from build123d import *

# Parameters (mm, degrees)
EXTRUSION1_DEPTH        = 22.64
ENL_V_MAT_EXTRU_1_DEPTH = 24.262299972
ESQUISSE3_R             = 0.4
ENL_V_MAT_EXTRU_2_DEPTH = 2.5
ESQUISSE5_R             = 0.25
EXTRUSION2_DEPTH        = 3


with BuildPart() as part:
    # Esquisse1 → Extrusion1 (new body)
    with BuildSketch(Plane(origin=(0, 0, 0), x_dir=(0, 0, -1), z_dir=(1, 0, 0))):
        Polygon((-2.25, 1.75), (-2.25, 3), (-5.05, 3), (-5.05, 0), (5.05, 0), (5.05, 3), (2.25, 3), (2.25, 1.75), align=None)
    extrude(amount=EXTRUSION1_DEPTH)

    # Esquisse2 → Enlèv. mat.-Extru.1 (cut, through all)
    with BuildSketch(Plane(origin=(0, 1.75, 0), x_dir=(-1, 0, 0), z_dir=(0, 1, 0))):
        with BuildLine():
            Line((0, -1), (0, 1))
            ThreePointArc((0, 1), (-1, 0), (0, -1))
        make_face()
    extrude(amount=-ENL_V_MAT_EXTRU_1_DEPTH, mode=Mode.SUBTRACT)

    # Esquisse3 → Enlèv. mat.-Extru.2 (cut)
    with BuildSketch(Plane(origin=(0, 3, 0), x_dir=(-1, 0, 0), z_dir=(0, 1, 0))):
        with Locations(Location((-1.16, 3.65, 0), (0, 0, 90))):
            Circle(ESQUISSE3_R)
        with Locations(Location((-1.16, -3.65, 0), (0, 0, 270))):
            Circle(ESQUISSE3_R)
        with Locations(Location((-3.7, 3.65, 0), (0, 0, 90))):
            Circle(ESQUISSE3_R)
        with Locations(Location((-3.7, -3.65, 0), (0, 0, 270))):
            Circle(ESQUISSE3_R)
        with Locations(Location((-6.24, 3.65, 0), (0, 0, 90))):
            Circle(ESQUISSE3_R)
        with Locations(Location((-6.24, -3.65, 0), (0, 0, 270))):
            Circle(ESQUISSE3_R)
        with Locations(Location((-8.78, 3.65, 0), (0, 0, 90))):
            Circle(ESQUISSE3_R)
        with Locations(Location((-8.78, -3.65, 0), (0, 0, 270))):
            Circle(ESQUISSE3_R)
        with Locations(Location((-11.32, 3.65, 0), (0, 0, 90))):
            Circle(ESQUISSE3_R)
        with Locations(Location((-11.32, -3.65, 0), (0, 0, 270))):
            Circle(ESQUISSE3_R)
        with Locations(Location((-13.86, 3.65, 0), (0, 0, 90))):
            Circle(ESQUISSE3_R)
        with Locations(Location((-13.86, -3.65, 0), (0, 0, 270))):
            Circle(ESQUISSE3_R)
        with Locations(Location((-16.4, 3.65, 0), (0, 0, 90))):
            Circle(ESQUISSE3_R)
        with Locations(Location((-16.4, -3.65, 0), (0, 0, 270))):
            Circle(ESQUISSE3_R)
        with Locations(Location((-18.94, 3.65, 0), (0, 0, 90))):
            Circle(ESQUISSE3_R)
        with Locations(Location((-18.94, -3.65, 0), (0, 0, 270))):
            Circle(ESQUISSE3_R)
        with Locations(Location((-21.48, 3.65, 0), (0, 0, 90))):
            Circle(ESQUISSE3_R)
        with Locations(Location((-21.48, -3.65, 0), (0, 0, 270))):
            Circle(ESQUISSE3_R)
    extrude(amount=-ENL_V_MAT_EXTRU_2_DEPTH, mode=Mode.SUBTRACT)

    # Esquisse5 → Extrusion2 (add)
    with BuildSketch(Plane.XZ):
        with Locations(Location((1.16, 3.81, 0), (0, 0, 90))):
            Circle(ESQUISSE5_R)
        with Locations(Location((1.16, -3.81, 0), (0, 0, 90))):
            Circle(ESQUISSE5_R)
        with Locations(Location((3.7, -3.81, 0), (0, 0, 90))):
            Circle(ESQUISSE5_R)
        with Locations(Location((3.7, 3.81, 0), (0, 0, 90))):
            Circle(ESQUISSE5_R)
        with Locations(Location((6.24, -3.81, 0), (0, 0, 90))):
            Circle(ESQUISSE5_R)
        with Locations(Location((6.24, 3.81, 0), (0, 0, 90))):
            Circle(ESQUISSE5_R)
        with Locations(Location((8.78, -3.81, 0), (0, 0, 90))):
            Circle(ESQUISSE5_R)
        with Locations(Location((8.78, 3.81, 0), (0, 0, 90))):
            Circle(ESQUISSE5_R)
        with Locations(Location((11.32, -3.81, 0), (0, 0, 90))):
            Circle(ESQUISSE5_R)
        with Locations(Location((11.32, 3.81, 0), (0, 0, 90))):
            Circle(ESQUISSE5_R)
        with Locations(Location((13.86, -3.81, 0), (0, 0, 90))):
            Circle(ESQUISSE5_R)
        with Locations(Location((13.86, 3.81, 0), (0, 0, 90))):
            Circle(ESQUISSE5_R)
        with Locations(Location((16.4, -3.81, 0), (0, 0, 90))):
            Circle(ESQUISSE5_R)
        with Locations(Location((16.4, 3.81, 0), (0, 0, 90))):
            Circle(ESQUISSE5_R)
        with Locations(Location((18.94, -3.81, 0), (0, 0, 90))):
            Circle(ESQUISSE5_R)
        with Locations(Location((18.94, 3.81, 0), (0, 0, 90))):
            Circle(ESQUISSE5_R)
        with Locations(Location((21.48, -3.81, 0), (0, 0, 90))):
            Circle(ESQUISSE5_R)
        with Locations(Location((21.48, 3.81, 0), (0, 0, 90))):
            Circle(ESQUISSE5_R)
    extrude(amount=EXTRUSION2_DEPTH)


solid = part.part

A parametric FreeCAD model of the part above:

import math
import FreeCAD as App
import Part
import Sketcher
from FreeCAD import Vector


def add_polygon(sketch, points):
    """Adds a closed chain of lines whose ends are joined by coincident constraints."""
    first, n = sketch.GeometryCount, len(points)
    for a, b in zip(points, points[1:] + points[:1]):
        sketch.addGeometry(Part.LineSegment(App.Vector(*a, 0), App.Vector(*b, 0)), False)
    for i in range(n):
        sketch.addConstraint(Sketcher.Constraint("Coincident", first + i, 2, first + (i + 1) % n, 1))

doc = App.newDocument("Part")
params = doc.addObject("Spreadsheet::Sheet", "Params")
for row, (alias, value) in enumerate([
    ("sketch1_width", "3 mm"),
    ("sketch1_height", "2.8 mm"),
    ("sketch1_height2", "10.1 mm"),
    ("sketch1_width2", "1.25 mm"),
    ("pad1_length", "22.64 mm"),
    ("sketch2_radius", "1 mm"),
    ("sketch3_diameter", "0.8 mm"),
    ("pocket2_length", "2.5 mm"),
    ("sketch4_diameter", "0.5 mm"),
    ("pad2_length", "3 mm"),
], start=1):
    params.set(f"A{row}", alias)
    params.set(f"B{row}", "=" + value)
    params.setAlias(f"B{row}", alias)

body = doc.addObject("PartDesign::Body", "Body")

# Sketch on YZ plane
sketch1 = body.newObject("Sketcher::SketchObject", "Sketch")
sketch1.AttachmentSupport = (doc.getObject("YZ_Plane"), [""])
sketch1.MapMode = "FlatFace"
add_polygon(sketch1, [(1.8, 2.2), (3, 2.2), (3, 5), (0, 5), (0, -5), (3, -5), (3, -2.2), (1.8, -2.2)])  # lines 0-7
sketch1.addConstraint([
    Sketcher.Constraint("Horizontal", 0),
    Sketcher.Constraint("Vertical", 1),
    Sketcher.Constraint("Horizontal", 2),
    Sketcher.Constraint("Vertical", 3),
    Sketcher.Constraint("Horizontal", 4),
    Sketcher.Constraint("Vertical", 5),
    Sketcher.Constraint("Horizontal", 6),
    Sketcher.Constraint("Vertical", 7),
    Sketcher.Constraint("Symmetric", 2, 2, 3, 2, -1, 1),
    Sketcher.Constraint("Symmetric", 0, 2, 5, 2, -1),
    Sketcher.Constraint("DistanceX", 2, 2, 2, 1, 3.0),
    Sketcher.Constraint("DistanceY", 1, 1, 1, 2, 2.8),
    Sketcher.Constraint("DistanceY", 3, 2, 3, 1, 10.1),
    Sketcher.Constraint("DistanceX", 0, 1, 0, 2, 1.25),
])
sketch1.setExpression("Constraints[18]", "Params.sketch1_width")
sketch1.setExpression("Constraints[19]", "Params.sketch1_height")
sketch1.setExpression("Constraints[20]", "Params.sketch1_height2")
sketch1.setExpression("Constraints[21]", "Params.sketch1_width2")
pad1 = body.newObject("PartDesign::Pad", "Pad")
pad1.Profile = sketch1
pad1.setExpression("Length", "Params.pad1_length")

# Sketch on XZ plane
sketch2 = body.newObject("Sketcher::SketchObject", "Sketch001")
sketch2.AttachmentSupport = (doc.getObject("XZ_Plane"), [""])
sketch2.MapMode = "FlatFace"
sketch2.AttachmentOffset = App.Placement(Vector(0, 0, -1.75), App.Rotation())
sketch2.addGeometry([
    Part.LineSegment(Vector(0, -1, 0), Vector(0, 1, 0)),
    Part.ArcOfCircle(Part.Circle(Vector(0, 0, 0), Vector(0, 0, 1), 1), math.radians(-90), math.radians(90)),
], False)
sketch2.addConstraint([
    Sketcher.Constraint("Coincident", 0, 1, 1, 1),
    Sketcher.Constraint("Coincident", 1, 2, 0, 2),
    Sketcher.Constraint("Vertical", 0),
    Sketcher.Constraint("Coincident", 1, 3, -1, 1),
    Sketcher.Constraint("PointOnObject", 0, 1, -2),
    Sketcher.Constraint("Radius", 1, 1.0),
])
sketch2.setExpression("Constraints[5]", "Params.sketch2_radius")
pocket1 = body.newObject("PartDesign::Pocket", "Pocket")
pocket1.Profile = sketch2
pocket1.Type = "ThroughAll"
pocket1.Reversed = True

# Sketch on XZ plane
sketch3 = body.newObject("Sketcher::SketchObject", "Sketch002")
sketch3.AttachmentSupport = (doc.getObject("XZ_Plane"), [""])
sketch3.MapMode = "FlatFace"
sketch3.AttachmentOffset = App.Placement(Vector(0, 0, -3), App.Rotation())
sketch3.addGeometry([
    Part.Circle(Vector(1.16, 3.65, 0), Vector(0, 0, 1), 0.4),  # 0
    Part.Circle(Vector(1.16, -3.65, 0), Vector(0, 0, 1), 0.4),  # 1
    Part.Circle(Vector(3.7, 3.65, 0), Vector(0, 0, 1), 0.4),  # 2
    Part.Circle(Vector(3.7, -3.65, 0), Vector(0, 0, 1), 0.4),  # 3
    Part.Circle(Vector(6.24, 3.65, 0), Vector(0, 0, 1), 0.4),  # 4
    Part.Circle(Vector(6.24, -3.65, 0), Vector(0, 0, 1), 0.4),  # 5
    Part.Circle(Vector(8.78, 3.65, 0), Vector(0, 0, 1), 0.4),  # 6
    Part.Circle(Vector(8.78, -3.65, 0), Vector(0, 0, 1), 0.4),  # 7
    Part.Circle(Vector(11.32, 3.65, 0), Vector(0, 0, 1), 0.4),  # 8
    Part.Circle(Vector(11.32, -3.65, 0), Vector(0, 0, 1), 0.4),  # 9
    Part.Circle(Vector(13.86, 3.65, 0), Vector(0, 0, 1), 0.4),  # 10
    Part.Circle(Vector(13.86, -3.65, 0), Vector(0, 0, 1), 0.4),  # 11
    Part.Circle(Vector(16.4, 3.65, 0), Vector(0, 0, 1), 0.4),  # 12
    Part.Circle(Vector(16.4, -3.65, 0), Vector(0, 0, 1), 0.4),  # 13
    Part.Circle(Vector(18.94, 3.65, 0), Vector(0, 0, 1), 0.4),  # 14
    Part.Circle(Vector(18.94, -3.65, 0), Vector(0, 0, 1), 0.4),  # 15
    Part.Circle(Vector(21.48, 3.65, 0), Vector(0, 0, 1), 0.4),  # 16
    Part.Circle(Vector(21.48, -3.65, 0), Vector(0, 0, 1), 0.4),  # 17
], False)
sketch3.addConstraint([
    Sketcher.Constraint("Equal", 0, 1),
    Sketcher.Constraint("Equal", 1, 2),
    Sketcher.Constraint("Equal", 2, 3),
    Sketcher.Constraint("Equal", 3, 4),
    Sketcher.Constraint("Equal", 4, 5),
    Sketcher.Constraint("Equal", 5, 6),
    Sketcher.Constraint("Equal", 6, 7),
    Sketcher.Constraint("Equal", 7, 8),
    Sketcher.Constraint("Equal", 8, 9),
    Sketcher.Constraint("Equal", 9, 10),
    Sketcher.Constraint("Equal", 10, 11),
    Sketcher.Constraint("Equal", 11, 12),
    Sketcher.Constraint("Equal", 12, 13),
    Sketcher.Constraint("Equal", 13, 14),
    Sketcher.Constraint("Equal", 14, 15),
    Sketcher.Constraint("Equal", 15, 16),
    Sketcher.Constraint("Equal", 16, 17),
    Sketcher.Constraint("Symmetric", 0, 3, 1, 3, -1),
    Sketcher.Constraint("Symmetric", 2, 3, 3, 3, -1),
    Sketcher.Constraint("Symmetric", 4, 3, 5, 3, -1),
    Sketcher.Constraint("Symmetric", 6, 3, 7, 3, -1),
    Sketcher.Constraint("Symmetric", 8, 3, 9, 3, -1),
    Sketcher.Constraint("Symmetric", 10, 3, 11, 3, -1),
    Sketcher.Constraint("Symmetric", 12, 3, 13, 3, -1),
    Sketcher.Constraint("Symmetric", 14, 3, 15, 3, -1),
    Sketcher.Constraint("Symmetric", 16, 3, 17, 3, -1),
    Sketcher.Constraint("Horizontal", 0, 3, 2, 3),
    Sketcher.Constraint("Horizontal", 2, 3, 4, 3),
    Sketcher.Constraint("Horizontal", 4, 3, 6, 3),
    Sketcher.Constraint("Horizontal", 6, 3, 8, 3),
    Sketcher.Constraint("Horizontal", 8, 3, 10, 3),
    Sketcher.Constraint("Horizontal", 10, 3, 12, 3),
    Sketcher.Constraint("Horizontal", 12, 3, 14, 3),
    Sketcher.Constraint("Horizontal", 14, 3, 16, 3),
    Sketcher.Constraint("Diameter", 0, 0.8),
    Sketcher.Constraint("DistanceX", -1, 1, 2, 3, 3.7),
    Sketcher.Constraint("DistanceX", -1, 1, 12, 3, 16.4),
    Sketcher.Constraint("DistanceY", 1, 3, 0, 3, 7.3),
    Sketcher.Constraint("DistanceX", -1, 1, 0, 3, 1.16),
    Sketcher.Constraint("DistanceX", -1, 1, 4, 3, 6.24),
    Sketcher.Constraint("DistanceX", -1, 1, 6, 3, 8.78),
    Sketcher.Constraint("DistanceX", -1, 1, 8, 3, 11.32),
    Sketcher.Constraint("DistanceX", -1, 1, 10, 3, 13.86),
    Sketcher.Constraint("DistanceX", -1, 1, 14, 3, 18.94),
    Sketcher.Constraint("DistanceX", -1, 1, 16, 3, 21.48),
])
sketch3.setExpression("Constraints[34]", "Params.sketch3_diameter")
pocket2 = body.newObject("PartDesign::Pocket", "Pocket001")
pocket2.Profile = sketch3
pocket2.setExpression("Length", "Params.pocket2_length")
pocket2.Reversed = True

# Sketch on XZ plane
sketch4 = body.newObject("Sketcher::SketchObject", "Sketch003")
sketch4.AttachmentSupport = (doc.getObject("XZ_Plane"), [""])
sketch4.MapMode = "FlatFace"
sketch4.addGeometry([
    Part.Circle(Vector(1.16, 3.81, 0), Vector(0, 0, 1), 0.25),  # 0
    Part.Circle(Vector(1.16, -3.81, 0), Vector(0, 0, 1), 0.25),  # 1
    Part.Circle(Vector(3.7, -3.81, 0), Vector(0, 0, 1), 0.25),  # 2
    Part.Circle(Vector(3.7, 3.81, 0), Vector(0, 0, 1), 0.25),  # 3
    Part.Circle(Vector(6.24, -3.81, 0), Vector(0, 0, 1), 0.25),  # 4
    Part.Circle(Vector(6.24, 3.81, 0), Vector(0, 0, 1), 0.25),  # 5
    Part.Circle(Vector(8.78, -3.81, 0), Vector(0, 0, 1), 0.25),  # 6
    Part.Circle(Vector(8.78, 3.81, 0), Vector(0, 0, 1), 0.25),  # 7
    Part.Circle(Vector(11.32, -3.81, 0), Vector(0, 0, 1), 0.25),  # 8
    Part.Circle(Vector(11.32, 3.81, 0), Vector(0, 0, 1), 0.25),  # 9
    Part.Circle(Vector(13.86, -3.81, 0), Vector(0, 0, 1), 0.25),  # 10
    Part.Circle(Vector(13.86, 3.81, 0), Vector(0, 0, 1), 0.25),  # 11
    Part.Circle(Vector(16.4, -3.81, 0), Vector(0, 0, 1), 0.25),  # 12
    Part.Circle(Vector(16.4, 3.81, 0), Vector(0, 0, 1), 0.25),  # 13
    Part.Circle(Vector(18.94, -3.81, 0), Vector(0, 0, 1), 0.25),  # 14
    Part.Circle(Vector(18.94, 3.81, 0), Vector(0, 0, 1), 0.25),  # 15
    Part.Circle(Vector(21.48, -3.81, 0), Vector(0, 0, 1), 0.25),  # 16
    Part.Circle(Vector(21.48, 3.81, 0), Vector(0, 0, 1), 0.25),  # 17
], False)
sketch4.addConstraint([
    Sketcher.Constraint("Equal", 0, 1),
    Sketcher.Constraint("Equal", 1, 2),
    Sketcher.Constraint("Equal", 2, 3),
    Sketcher.Constraint("Equal", 3, 4),
    Sketcher.Constraint("Equal", 4, 5),
    Sketcher.Constraint("Equal", 5, 6),
    Sketcher.Constraint("Equal", 6, 7),
    Sketcher.Constraint("Equal", 7, 8),
    Sketcher.Constraint("Equal", 8, 9),
    Sketcher.Constraint("Equal", 9, 10),
    Sketcher.Constraint("Equal", 10, 11),
    Sketcher.Constraint("Equal", 11, 12),
    Sketcher.Constraint("Equal", 12, 13),
    Sketcher.Constraint("Equal", 13, 14),
    Sketcher.Constraint("Equal", 14, 15),
    Sketcher.Constraint("Equal", 15, 16),
    Sketcher.Constraint("Equal", 16, 17),
    Sketcher.Constraint("Symmetric", 0, 3, 1, 3, -1),
    Sketcher.Constraint("Symmetric", 2, 3, 3, 3, -1),
    Sketcher.Constraint("Symmetric", 4, 3, 5, 3, -1),
    Sketcher.Constraint("Symmetric", 6, 3, 7, 3, -1),
    Sketcher.Constraint("Symmetric", 8, 3, 9, 3, -1),
    Sketcher.Constraint("Symmetric", 10, 3, 11, 3, -1),
    Sketcher.Constraint("Symmetric", 12, 3, 13, 3, -1),
    Sketcher.Constraint("Symmetric", 14, 3, 15, 3, -1),
    Sketcher.Constraint("Symmetric", 16, 3, 17, 3, -1),
    Sketcher.Constraint("Horizontal", 1, 3, 2, 3),
    Sketcher.Constraint("Horizontal", 2, 3, 4, 3),
    Sketcher.Constraint("Horizontal", 4, 3, 6, 3),
    Sketcher.Constraint("Horizontal", 6, 3, 8, 3),
    Sketcher.Constraint("Horizontal", 8, 3, 10, 3),
    Sketcher.Constraint("Horizontal", 10, 3, 12, 3),
    Sketcher.Constraint("Horizontal", 12, 3, 14, 3),
    Sketcher.Constraint("Horizontal", 14, 3, 16, 3),
    Sketcher.Constraint("Diameter", 0, 0.5),
    Sketcher.Constraint("DistanceX", -1, 1, 2, 3, 3.7),
    Sketcher.Constraint("DistanceX", -1, 1, 12, 3, 16.4),
    Sketcher.Constraint("DistanceX", -1, 1, 0, 3, 1.16),
    Sketcher.Constraint("DistanceY", -1, 1, 0, 3, 3.81),
    Sketcher.Constraint("DistanceX", -1, 1, 4, 3, 6.24),
    Sketcher.Constraint("DistanceX", -1, 1, 6, 3, 8.78),
    Sketcher.Constraint("DistanceX", -1, 1, 8, 3, 11.32),
    Sketcher.Constraint("DistanceX", -1, 1, 10, 3, 13.86),
    Sketcher.Constraint("DistanceX", -1, 1, 14, 3, 18.94),
    Sketcher.Constraint("DistanceX", -1, 1, 16, 3, 21.48),
])
sketch4.setExpression("Constraints[34]", "Params.sketch4_diameter")
pad2 = body.newObject("PartDesign::Pad", "Pad001")
pad2.Profile = sketch4
pad2.setExpression("Length", "Params.pad2_length")

doc.recompute()
